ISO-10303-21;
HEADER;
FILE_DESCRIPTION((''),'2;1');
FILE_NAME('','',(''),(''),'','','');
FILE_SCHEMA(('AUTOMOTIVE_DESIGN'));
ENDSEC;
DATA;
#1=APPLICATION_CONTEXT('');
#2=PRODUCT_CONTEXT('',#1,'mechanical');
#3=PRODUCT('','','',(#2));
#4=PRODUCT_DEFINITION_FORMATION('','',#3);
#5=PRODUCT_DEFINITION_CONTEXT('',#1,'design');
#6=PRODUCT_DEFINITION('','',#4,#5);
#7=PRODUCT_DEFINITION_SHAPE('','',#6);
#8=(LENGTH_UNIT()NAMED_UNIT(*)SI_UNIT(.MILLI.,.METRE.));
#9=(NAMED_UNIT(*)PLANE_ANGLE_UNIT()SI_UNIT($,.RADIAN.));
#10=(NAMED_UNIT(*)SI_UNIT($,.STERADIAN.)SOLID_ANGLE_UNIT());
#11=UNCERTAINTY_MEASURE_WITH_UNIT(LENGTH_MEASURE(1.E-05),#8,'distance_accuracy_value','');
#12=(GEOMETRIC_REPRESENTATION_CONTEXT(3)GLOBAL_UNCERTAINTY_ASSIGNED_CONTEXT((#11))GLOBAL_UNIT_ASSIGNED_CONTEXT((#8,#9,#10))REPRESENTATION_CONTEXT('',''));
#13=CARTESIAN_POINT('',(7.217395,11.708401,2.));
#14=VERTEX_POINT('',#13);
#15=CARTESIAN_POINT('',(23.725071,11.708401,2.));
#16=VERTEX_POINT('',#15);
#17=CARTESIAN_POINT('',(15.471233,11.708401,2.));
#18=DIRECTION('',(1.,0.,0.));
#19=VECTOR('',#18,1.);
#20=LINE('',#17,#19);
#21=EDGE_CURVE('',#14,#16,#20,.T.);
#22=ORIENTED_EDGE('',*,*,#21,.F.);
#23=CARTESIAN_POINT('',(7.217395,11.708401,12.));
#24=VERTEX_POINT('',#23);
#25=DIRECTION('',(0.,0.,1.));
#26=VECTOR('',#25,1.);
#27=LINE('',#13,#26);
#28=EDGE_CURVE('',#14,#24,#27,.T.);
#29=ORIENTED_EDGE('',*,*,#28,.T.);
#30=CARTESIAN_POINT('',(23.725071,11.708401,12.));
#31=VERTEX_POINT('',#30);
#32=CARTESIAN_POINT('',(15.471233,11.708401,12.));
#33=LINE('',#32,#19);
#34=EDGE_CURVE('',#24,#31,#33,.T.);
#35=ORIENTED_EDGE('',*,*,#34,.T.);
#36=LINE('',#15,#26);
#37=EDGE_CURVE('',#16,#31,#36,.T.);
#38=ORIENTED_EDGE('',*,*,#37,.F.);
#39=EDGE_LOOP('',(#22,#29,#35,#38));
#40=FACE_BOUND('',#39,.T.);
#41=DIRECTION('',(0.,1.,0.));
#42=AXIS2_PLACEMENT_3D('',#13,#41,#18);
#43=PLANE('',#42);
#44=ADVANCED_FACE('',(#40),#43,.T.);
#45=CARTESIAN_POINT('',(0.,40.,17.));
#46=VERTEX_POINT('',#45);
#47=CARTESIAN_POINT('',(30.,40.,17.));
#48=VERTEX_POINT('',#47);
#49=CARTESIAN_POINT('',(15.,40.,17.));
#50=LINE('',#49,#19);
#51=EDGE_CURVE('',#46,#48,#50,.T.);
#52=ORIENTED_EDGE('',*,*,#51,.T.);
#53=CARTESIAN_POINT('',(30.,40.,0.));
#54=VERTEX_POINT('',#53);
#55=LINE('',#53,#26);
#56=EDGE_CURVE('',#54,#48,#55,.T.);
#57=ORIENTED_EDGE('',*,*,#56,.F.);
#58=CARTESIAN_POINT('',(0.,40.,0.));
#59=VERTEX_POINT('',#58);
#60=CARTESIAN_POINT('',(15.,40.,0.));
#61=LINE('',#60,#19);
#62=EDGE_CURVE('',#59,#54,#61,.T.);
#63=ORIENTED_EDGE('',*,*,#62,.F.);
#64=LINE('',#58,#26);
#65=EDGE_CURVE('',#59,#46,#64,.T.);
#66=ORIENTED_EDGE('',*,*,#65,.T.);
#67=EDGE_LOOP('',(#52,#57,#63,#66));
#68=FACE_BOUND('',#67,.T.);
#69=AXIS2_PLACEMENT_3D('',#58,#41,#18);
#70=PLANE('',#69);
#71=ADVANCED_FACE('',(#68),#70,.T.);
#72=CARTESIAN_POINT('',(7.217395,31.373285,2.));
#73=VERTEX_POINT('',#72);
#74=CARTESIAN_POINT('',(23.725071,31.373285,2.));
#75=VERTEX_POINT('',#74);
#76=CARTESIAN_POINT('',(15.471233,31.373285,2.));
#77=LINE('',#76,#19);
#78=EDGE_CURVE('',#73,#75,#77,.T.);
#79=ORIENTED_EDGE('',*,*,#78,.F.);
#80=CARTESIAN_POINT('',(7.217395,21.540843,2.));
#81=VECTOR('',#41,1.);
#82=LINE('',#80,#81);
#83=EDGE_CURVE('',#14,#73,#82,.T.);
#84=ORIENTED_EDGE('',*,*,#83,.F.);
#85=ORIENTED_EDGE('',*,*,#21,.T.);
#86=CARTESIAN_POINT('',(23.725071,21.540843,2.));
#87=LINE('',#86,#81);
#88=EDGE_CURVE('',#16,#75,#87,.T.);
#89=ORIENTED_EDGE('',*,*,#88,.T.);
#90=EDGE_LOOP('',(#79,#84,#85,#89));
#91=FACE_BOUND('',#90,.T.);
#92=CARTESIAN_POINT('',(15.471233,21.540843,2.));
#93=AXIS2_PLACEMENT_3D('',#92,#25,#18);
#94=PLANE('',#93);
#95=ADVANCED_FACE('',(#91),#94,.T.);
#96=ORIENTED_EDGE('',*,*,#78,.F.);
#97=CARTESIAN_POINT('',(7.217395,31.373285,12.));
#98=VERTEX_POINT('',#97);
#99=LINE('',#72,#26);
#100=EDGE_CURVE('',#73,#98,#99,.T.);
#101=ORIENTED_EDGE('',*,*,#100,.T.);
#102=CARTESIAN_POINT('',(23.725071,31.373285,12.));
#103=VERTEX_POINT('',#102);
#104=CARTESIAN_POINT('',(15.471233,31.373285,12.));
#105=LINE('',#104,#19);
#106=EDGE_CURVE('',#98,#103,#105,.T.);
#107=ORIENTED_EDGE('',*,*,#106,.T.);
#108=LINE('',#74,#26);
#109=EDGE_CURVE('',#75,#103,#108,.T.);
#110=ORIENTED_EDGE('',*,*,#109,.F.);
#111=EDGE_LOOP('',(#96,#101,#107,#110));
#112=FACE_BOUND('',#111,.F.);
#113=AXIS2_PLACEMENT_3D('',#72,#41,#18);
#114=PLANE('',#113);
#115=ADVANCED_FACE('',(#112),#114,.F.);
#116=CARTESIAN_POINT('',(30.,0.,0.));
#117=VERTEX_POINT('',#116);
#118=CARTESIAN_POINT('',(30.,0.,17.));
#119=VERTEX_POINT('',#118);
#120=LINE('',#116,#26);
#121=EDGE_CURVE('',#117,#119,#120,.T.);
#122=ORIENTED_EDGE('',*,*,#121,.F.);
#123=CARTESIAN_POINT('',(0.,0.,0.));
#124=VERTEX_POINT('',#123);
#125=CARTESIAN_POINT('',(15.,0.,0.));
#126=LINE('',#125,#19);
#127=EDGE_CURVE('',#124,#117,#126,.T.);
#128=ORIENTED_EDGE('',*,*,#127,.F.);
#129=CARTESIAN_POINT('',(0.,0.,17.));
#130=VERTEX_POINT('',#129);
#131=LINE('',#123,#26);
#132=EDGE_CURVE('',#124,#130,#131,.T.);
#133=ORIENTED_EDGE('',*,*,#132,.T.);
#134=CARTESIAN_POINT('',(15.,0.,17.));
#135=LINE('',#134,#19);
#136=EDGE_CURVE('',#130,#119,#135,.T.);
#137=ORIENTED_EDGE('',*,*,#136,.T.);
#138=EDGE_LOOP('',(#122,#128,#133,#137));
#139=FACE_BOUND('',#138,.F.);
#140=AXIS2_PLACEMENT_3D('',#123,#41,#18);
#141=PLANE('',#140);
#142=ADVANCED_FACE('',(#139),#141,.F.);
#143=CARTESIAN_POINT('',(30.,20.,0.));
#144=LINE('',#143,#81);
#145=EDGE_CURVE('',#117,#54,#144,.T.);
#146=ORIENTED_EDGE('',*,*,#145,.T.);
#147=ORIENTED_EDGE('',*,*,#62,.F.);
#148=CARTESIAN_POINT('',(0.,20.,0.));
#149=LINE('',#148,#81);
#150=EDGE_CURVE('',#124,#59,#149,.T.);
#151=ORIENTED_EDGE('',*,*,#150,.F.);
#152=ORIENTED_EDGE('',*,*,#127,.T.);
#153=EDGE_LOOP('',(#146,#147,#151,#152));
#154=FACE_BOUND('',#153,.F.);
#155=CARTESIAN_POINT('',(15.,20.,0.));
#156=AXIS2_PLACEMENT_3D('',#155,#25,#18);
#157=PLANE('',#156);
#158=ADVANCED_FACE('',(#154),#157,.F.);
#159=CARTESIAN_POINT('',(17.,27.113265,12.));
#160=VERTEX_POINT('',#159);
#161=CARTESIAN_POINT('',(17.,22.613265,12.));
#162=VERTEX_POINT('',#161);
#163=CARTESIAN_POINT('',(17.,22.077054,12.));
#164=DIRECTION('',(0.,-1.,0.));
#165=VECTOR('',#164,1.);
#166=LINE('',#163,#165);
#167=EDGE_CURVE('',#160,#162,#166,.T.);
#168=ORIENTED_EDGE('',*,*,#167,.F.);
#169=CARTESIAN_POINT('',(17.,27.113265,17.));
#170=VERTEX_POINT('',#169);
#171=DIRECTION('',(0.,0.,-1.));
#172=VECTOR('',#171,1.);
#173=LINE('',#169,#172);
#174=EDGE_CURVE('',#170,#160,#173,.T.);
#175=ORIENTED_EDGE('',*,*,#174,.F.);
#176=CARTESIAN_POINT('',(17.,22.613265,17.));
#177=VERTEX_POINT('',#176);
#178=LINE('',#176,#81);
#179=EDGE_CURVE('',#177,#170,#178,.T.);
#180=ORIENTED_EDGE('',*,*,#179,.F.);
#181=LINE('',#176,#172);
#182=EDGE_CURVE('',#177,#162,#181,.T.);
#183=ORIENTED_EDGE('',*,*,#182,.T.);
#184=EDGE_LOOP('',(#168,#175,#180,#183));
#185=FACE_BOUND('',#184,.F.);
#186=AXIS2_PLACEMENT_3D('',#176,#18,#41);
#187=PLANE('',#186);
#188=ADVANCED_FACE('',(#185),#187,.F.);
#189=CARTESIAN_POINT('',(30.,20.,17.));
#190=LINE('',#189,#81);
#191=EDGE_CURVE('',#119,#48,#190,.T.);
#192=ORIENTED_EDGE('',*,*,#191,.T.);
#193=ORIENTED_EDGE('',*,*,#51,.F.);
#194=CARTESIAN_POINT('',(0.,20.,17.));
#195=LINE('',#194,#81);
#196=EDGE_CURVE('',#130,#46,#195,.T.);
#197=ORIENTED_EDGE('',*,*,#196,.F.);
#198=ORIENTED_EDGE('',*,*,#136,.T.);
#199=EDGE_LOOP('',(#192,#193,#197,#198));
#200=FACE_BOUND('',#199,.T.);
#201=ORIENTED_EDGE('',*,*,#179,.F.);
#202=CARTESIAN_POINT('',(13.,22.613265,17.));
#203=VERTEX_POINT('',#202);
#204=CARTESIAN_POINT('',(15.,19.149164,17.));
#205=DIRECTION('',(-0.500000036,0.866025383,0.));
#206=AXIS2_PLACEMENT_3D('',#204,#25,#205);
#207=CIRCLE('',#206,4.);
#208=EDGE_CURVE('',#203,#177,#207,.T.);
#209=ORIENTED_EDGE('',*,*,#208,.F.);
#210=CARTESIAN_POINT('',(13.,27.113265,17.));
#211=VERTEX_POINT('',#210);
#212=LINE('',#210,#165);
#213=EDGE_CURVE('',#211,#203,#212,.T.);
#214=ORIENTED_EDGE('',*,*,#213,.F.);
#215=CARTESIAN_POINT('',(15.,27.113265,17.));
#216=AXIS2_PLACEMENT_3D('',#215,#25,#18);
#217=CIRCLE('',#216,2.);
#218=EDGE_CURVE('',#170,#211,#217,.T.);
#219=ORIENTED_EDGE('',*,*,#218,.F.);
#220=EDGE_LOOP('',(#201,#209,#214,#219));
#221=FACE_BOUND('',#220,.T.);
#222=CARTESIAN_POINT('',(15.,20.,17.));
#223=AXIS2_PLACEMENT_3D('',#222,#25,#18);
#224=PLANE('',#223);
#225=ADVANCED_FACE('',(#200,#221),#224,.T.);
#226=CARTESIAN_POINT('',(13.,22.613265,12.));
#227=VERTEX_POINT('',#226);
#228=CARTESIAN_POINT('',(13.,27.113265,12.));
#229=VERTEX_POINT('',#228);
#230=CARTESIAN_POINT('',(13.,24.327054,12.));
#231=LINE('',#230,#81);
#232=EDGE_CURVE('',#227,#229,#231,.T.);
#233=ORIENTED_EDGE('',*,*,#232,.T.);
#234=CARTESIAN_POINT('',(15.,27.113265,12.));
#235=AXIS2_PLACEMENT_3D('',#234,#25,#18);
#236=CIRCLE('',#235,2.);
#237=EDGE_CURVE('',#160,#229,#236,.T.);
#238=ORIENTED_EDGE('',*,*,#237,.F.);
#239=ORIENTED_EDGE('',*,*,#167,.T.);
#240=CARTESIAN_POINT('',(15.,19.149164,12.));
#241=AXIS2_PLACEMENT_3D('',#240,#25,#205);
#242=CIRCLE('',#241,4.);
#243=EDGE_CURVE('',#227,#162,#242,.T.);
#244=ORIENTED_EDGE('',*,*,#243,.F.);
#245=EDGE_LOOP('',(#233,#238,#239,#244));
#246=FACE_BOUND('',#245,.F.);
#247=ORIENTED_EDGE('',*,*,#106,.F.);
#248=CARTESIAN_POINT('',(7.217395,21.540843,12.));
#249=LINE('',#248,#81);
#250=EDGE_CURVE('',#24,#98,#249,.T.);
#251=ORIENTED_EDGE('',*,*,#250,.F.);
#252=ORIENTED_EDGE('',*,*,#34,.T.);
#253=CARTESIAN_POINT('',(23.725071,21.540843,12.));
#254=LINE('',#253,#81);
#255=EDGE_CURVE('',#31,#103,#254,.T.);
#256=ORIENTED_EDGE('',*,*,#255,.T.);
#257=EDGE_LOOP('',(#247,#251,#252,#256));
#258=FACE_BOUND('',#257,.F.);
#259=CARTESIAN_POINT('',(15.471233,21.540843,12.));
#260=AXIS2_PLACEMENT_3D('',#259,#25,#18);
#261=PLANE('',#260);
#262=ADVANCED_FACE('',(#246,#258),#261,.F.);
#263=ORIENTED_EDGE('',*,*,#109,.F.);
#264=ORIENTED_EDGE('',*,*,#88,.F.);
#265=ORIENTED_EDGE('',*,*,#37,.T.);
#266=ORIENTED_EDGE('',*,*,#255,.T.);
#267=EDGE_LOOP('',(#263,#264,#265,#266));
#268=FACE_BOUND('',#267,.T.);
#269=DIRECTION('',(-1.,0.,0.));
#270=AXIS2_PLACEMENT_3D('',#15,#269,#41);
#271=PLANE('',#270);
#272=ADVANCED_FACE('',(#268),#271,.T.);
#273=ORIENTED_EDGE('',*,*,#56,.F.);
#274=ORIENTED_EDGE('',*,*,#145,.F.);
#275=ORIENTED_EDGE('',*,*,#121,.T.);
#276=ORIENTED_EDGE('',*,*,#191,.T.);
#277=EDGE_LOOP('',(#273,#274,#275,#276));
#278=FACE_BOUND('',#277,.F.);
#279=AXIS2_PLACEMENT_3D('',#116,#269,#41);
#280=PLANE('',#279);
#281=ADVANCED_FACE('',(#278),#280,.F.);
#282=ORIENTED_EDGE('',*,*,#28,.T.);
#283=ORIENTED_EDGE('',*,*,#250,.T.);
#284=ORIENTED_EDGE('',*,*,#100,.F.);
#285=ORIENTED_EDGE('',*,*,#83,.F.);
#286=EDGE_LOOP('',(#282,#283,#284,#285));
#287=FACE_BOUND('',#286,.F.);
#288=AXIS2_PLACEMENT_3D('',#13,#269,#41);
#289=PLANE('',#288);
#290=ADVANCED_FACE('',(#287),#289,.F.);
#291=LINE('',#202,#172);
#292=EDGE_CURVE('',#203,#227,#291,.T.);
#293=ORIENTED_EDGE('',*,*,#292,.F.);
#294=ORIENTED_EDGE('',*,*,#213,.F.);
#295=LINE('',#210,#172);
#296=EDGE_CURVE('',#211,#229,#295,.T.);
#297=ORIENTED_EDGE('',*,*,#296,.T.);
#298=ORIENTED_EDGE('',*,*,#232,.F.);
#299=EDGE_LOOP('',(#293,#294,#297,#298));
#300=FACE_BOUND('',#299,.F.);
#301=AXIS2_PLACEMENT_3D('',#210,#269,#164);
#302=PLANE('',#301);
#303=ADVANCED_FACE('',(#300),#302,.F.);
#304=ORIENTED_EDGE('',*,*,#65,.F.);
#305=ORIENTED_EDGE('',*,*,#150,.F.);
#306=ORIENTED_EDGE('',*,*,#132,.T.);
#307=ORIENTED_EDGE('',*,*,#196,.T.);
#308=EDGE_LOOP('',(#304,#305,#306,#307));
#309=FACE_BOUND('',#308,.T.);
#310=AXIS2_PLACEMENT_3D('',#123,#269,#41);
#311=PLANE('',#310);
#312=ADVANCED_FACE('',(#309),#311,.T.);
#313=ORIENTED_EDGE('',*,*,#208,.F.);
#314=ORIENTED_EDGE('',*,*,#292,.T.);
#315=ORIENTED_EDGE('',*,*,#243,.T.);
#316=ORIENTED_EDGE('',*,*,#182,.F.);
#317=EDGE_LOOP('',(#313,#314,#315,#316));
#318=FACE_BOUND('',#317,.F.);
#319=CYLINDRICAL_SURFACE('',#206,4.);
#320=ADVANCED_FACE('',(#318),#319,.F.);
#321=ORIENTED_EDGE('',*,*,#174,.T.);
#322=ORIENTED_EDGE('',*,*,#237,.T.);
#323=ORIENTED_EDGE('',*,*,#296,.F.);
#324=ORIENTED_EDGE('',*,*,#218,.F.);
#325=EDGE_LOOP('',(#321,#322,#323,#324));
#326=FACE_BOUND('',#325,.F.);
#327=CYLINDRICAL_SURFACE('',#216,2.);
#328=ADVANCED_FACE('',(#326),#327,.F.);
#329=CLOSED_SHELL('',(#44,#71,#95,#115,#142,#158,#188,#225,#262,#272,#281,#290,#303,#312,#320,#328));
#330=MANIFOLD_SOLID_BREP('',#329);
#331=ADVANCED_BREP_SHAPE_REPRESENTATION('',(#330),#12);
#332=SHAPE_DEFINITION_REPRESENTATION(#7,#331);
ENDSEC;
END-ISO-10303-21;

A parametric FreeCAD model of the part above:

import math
import FreeCAD as App
import Part
import Sketcher

V = App.Vector
Q = App.Units.Quantity


def add_polygon(sketch, points):
    """Adds a closed chain of lines whose ends are joined by coincident constraints."""
    first, n = sketch.GeometryCount, len(points)
    for a, b in zip(points, points[1:] + points[:1]):
        sketch.addGeometry(Part.LineSegment(App.Vector(*a, 0), App.Vector(*b, 0)), False)
    for i in range(n):
        sketch.addConstraint(Sketcher.Constraint("Coincident", first + i, 2, first + (i + 1) % n, 1))

doc = App.newDocument("Part")
params = doc.addObject("Spreadsheet::Sheet", "Params")
for row, (alias, value) in enumerate([
    ("sketch1_width", "30 mm"),
    ("sketch1_height", "40 mm"),
    ("pad1_length", "17 mm"),
    ("sketch2_radius", "4 mm"),
    ("sketch2_radius2", "2 mm"),
    ("sketch2_height", "4.5 mm"),
    ("pocket1_length", "15 mm"),
    ("pocket2_length", "10 mm"),
], start=1):
    params.set(f"A{row}", alias)
    params.set(f"B{row}", "=" + value)
    params.setAlias(f"B{row}", alias)

body = doc.addObject("PartDesign::Body", "Body")

# Sketch on XY plane
sketch1 = body.newObject("Sketcher::SketchObject", "Sketch")
sketch1.AttachmentSupport = (doc.getObject("XY_Plane"), [""])
sketch1.MapMode = "FlatFace"
add_polygon(sketch1, [(0, 40), (0, 0), (30, 0), (30, 40)])  # lines 0-3
sketch1.addConstraint(Sketcher.Constraint("Vertical", 0))
sketch1.addConstraint(Sketcher.Constraint("Horizontal", 1))
sketch1.addConstraint(Sketcher.Constraint("Vertical", 2))
sketch1.addConstraint(Sketcher.Constraint("Horizontal", 3))
sketch1.addConstraint(Sketcher.Constraint("Coincident", 0, 2, -1, 1))
sketch1.addConstraint(Sketcher.Constraint("DistanceX", 1, 1, 1, 2, Q("30 mm")))
sketch1.addConstraint(Sketcher.Constraint("DistanceY", 0, 2, 0, 1, Q("40 mm")))
sketch1.setExpression("Constraints[9]", "Params.sketch1_width")
sketch1.setExpression("Constraints[10]", "Params.sketch1_height")
pad1 = body.newObject("PartDesign::Pad", "Pad")
pad1.Profile = sketch1
pad1.setExpression("Length", "Params.pad1_length")

# Sketch on XY plane
sketch2 = body.newObject("Sketcher::SketchObject", "Sketch001")
sketch2.AttachmentSupport = (doc.getObject("XY_Plane"), [""])
sketch2.MapMode = "FlatFace"
sketch2.AttachmentOffset = App.Placement(V(0, 0, 17), App.Rotation())
sketch2.addGeometry(Part.LineSegment(V(13, 27.113265, 0), V(13, 22.613265, 0)), False)
sketch2.addGeometry(Part.ArcOfCircle(Part.Circle(V(15, 19.149164, 0), V(0, 0, 1), 4), math.radians(120.000002), math.radians(419.999998)), False)
sketch2.addGeometry(Part.LineSegment(V(17, 22.613265, 0), V(17, 27.113265, 0)), False)
sketch2.addGeometry(Part.ArcOfCircle(Part.Circle(V(15, 27.113265, 0), V(0, 0, 1), 2), math.radians(0), math.radians(180)), False)
sketch2.addConstraint(Sketcher.Constraint("Coincident", 0, 2, 1, 1))
sketch2.addConstraint(Sketcher.Constraint("Coincident", 1, 2, 2, 1))
sketch2.addConstraint(Sketcher.Constraint("Tangent", 2, 2, 3, 1))
sketch2.addConstraint(Sketcher.Constraint("Tangent", 3, 2, 0, 1))
sketch2.addConstraint(Sketcher.Constraint("Vertical", 0))
sketch2.addConstraint(Sketcher.Constraint("Vertical", 2))
sketch2.addConstraint(Sketcher.Constraint("Horizontal", 0, 2, 1, 2))
sketch2.addConstraint(Sketcher.Constraint("Radius", 1, Q("4 mm")))
sketch2.addConstraint(Sketcher.Constraint("Radius", 3, Q("2 mm")))
sketch2.addConstraint(Sketcher.Constraint("DistanceY", 0, 2, 0, 1, Q("4.5 mm")))
sketch2.addConstraint(Sketcher.Constraint("DistanceX", -1, 1, 1, 3, Q("15 mm")))
sketch2.addConstraint(Sketcher.Constraint("DistanceY", -1, 1, 1, 3, Q("19.149164 mm")))
sketch2.setExpression("Constraints[7]", "Params.sketch2_radius")
sketch2.setExpression("Constraints[8]", "Params.sketch2_radius2")
sketch2.setExpression("Constraints[9]", "Params.sketch2_height")
pocket1 = body.newObject("PartDesign::Pocket", "Pocket")
pocket1.Profile = sketch2
pocket1.setExpression("Length", "Params.pocket1_length")

# Sketch on XY plane
sketch3 = body.newObject("Sketcher::SketchObject", "Sketch002")
sketch3.AttachmentSupport = (doc.getObject("XY_Plane"), [""])
sketch3.MapMode = "FlatFace"
sketch3.AttachmentOffset = App.Placement(V(0, 0, 2), App.Rotation())
add_polygon(sketch3, [(7.217395, 31.373285), (7.217395, 11.708401), (23.725071, 11.708401), (23.725071, 31.373285)])  # lines 0-3
sketch3.addConstraint(Sketcher.Constraint("Vertical", 0))
sketch3.addConstraint(Sketcher.Constraint("Horizontal", 1))
sketch3.addConstraint(Sketcher.Constraint("Vertical", 2))
sketch3.addConstraint(Sketcher.Constraint("Horizontal", 3))
sketch3.addConstraint(Sketcher.Constraint("DistanceY", -1, 1, 0, 2, Q("11.708401 mm")))
sketch3.addConstraint(Sketcher.Constraint("DistanceX", 1, 1, 1, 2, Q("16.507677 mm")))
sketch3.addConstraint(Sketcher.Constraint("DistanceY", 0, 2, 0, 1, Q("19.664884 mm")))
sketch3.addConstraint(Sketcher.Constraint("DistanceX", -1, 1, 1, 2, Q("23.725071 mm")))
pocket2 = body.newObject("PartDesign::Pocket", "Pocket001")
pocket2.Profile = sketch3
pocket2.setExpression("Length", "Params.pocket2_length")
pocket2.Reversed = True

doc.recompute()
